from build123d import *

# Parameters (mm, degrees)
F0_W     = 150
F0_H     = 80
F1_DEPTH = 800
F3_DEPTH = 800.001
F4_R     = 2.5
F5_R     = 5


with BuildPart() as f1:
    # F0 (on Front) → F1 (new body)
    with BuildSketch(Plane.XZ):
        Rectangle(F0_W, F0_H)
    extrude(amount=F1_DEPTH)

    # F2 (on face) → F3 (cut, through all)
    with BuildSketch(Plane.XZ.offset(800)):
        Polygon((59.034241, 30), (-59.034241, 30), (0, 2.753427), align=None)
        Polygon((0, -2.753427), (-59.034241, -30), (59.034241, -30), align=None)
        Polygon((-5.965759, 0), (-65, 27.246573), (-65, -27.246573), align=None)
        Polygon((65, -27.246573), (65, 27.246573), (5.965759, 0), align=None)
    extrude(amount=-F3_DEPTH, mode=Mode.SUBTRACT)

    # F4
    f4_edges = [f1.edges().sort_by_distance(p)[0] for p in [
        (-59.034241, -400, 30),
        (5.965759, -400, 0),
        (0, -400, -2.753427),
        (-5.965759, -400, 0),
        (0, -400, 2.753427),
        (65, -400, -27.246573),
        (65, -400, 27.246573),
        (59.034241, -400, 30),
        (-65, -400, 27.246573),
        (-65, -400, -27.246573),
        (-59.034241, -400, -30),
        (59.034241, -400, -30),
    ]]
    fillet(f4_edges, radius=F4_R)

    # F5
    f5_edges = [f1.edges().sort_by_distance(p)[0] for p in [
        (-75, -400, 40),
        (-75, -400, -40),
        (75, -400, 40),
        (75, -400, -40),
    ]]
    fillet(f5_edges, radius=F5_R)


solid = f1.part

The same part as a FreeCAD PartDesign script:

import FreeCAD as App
import Part
import Sketcher

V = App.Vector


def edges_at(feature, points):
    """Names of the edges that pass closest to the given points."""
    edges = feature.Shape.Edges
    near = lambda p: min(range(len(edges)), key=lambda i: edges[i].distToShape(Part.Vertex(*p))[0])
    return sorted({f"Edge{near(p) + 1}" for p in points})

doc = App.newDocument("Part")
body = doc.addObject("PartDesign::Body", "Body")

sketch1 = body.newObject("Sketcher::SketchObject", "Sketch")
sketch1.AttachmentSupport = (doc.getObject("XZ_Plane"), [""])
sketch1.MapMode = "FlatFace"
sketch1.addGeometry([
    Part.LineSegment(V(-75, 40, 0), V(-75, -40, 0)),
    Part.LineSegment(V(-75, -40, 0), V(75, -40, 0)),
    Part.LineSegment(V(75, -40, 0), V(75, 40, 0)),
    Part.LineSegment(V(75, 40, 0), V(-75, 40, 0)),
], False)
sketch1.addConstraint([
    Sketcher.Constraint("Coincident", 0, 2, 1, 1),
    Sketcher.Constraint("Coincident", 1, 2, 2, 1),
    Sketcher.Constraint("Coincident", 2, 2, 3, 1),
    Sketcher.Constraint("Coincident", 3, 2, 0, 1),
    Sketcher.Constraint("Vertical", 0),
    Sketcher.Constraint("Horizontal", 1),
    Sketcher.Constraint("Vertical", 2),
    Sketcher.Constraint("Horizontal", 3),
    Sketcher.Constraint("Symmetric", 0, 2, 2, 2, -1, 1),
    Sketcher.Constraint("DistanceX", 1, 1, 1, 2, 150.0),
    Sketcher.Constraint("DistanceY", 0, 2, 0, 1, 80.0),
])
pad1 = body.newObject("PartDesign::Pad", "Pad")
pad1.Profile = sketch1
pad1.Length = 800

sketch2 = body.newObject("Sketcher::SketchObject", "Sketch001")
sketch2.AttachmentSupport = (doc.getObject("XZ_Plane"), [""])
sketch2.MapMode = "FlatFace"
sketch2.AttachmentOffset = App.Placement(V(0, 0, 800), App.Rotation())
sketch2.addGeometry([
    Part.LineSegment(V(59, 30, 0), V(-59, 30, 0)),
    Part.LineSegment(V(-59, 30, 0), V(0, 3, 0)),
    Part.LineSegment(V(0, 3, 0), V(59, 30, 0)),
    Part.LineSegment(V(0, -3, 0), V(-59, -30, 0)),
    Part.LineSegment(V(-59, -30, 0), V(59, -30, 0)),
    Part.LineSegment(V(59, -30, 0), V(0, -3, 0)),
    Part.LineSegment(V(-6, 0, 0), V(-65, 27, 0)),
    Part.LineSegment(V(-65, 27, 0), V(-65, -27, 0)),
    Part.LineSegment(V(-65, -27, 0), V(-6, 0, 0)),
    Part.LineSegment(V(65, -27, 0), V(65, 27, 0)),
    Part.LineSegment(V(65, 27, 0), V(6, 0, 0)),
    Part.LineSegment(V(6, 0, 0), V(65, -27, 0)),
], False)
sketch2.addConstraint([
    Sketcher.Constraint("Coincident", 0, 2, 1, 1),
    Sketcher.Constraint("Coincident", 1, 2, 2, 1),
    Sketcher.Constraint("Coincident", 2, 2, 0, 1),
    Sketcher.Constraint("Coincident", 3, 2, 4, 1),
    Sketcher.Constraint("Coincident", 4, 2, 5, 1),
    Sketcher.Constraint("Coincident", 5, 2, 3, 1),
    Sketcher.Constraint("Coincident", 6, 2, 7, 1),
    Sketcher.Constraint("Coincident", 7, 2, 8, 1),
    Sketcher.Constraint("Coincident", 8, 2, 6, 1),
    Sketcher.Constraint("Coincident", 9, 2, 10, 1),
    Sketcher.Constraint("Coincident", 10, 2, 11, 1),
    Sketcher.Constraint("Coincident", 11, 2, 9, 1),
    Sketcher.Constraint("Horizontal", 0),
    Sketcher.Constraint("Horizontal", 4),
    Sketcher.Constraint("Vertical", 7),
    Sketcher.Constraint("Vertical", 9),
    Sketcher.Constraint("Symmetric", 2, 2, 3, 2, -1, 1),
    Sketcher.Constraint("Symmetric", 1, 2, 5, 2, -1, 1),
    Sketcher.Constraint("Symmetric", 7, 2, 9, 2, -1, 1),
    Sketcher.Constraint("Symmetric", 8, 2, 10, 2, -1, 1),
    Sketcher.Constraint("PointOnObject", 1, 2, -2),
    Sketcher.Constraint("PointOnObject", 8, 2, -1),
    Sketcher.Constraint("Parallel", 1, 5),
    Sketcher.Constraint("Parallel", 5, 6),
    Sketcher.Constraint("Parallel", 3, 8),
    Sketcher.Constraint("Parallel", 6, 11),
    Sketcher.Constraint("Horizontal", 6, 2, 9, 2),
    Sketcher.Constraint("Equal", 5, 6),
    Sketcher.Constraint("DistanceY", -1, 1, 0, 2, 30.0),
    Sketcher.Constraint("DistanceX", 6, 2, -1, 1, 65.0),
    Sketcher.Constraint("DistanceX", 0, 2, 0, 1, 118.068482),
    Sketcher.Constraint("DistanceY", 7, 2, 7, 1, 54.493146),
])
pocket1 = body.newObject("PartDesign::Pocket", "Pocket")
pocket1.Profile = sketch2
pocket1.Type = "ThroughAll"
doc.recompute()

fillet = body.newObject("PartDesign::Fillet", "Fillet")
fillet.Base = (pocket1, edges_at(pocket1, [
    (-59.034, -400, 30),
    (5.966, -400, 0),
    (0, -400, -2.753),
    (-5.966, -400, 0),
    (0, -400, 2.753),
    (65, -400, -27.247),
    (65, -400, 27.247),
    (59.034, -400, 30),
    (-65, -400, 27.247),
    (-65, -400, -27.247),
    (-59.034, -400, -30),
    (59.034, -400, -30),
]))
fillet.Radius = 2.5
doc.recompute()

fillet2 = body.newObject("PartDesign::Fillet", "Fillet001")
fillet2.Base = (fillet, edges_at(fillet, [
    (-75, -400, 40),
    (-75, -400, -40),
    (75, -400, 40),
    (75, -400, -40),
]))
fillet2.Radius = 5

doc.recompute()
